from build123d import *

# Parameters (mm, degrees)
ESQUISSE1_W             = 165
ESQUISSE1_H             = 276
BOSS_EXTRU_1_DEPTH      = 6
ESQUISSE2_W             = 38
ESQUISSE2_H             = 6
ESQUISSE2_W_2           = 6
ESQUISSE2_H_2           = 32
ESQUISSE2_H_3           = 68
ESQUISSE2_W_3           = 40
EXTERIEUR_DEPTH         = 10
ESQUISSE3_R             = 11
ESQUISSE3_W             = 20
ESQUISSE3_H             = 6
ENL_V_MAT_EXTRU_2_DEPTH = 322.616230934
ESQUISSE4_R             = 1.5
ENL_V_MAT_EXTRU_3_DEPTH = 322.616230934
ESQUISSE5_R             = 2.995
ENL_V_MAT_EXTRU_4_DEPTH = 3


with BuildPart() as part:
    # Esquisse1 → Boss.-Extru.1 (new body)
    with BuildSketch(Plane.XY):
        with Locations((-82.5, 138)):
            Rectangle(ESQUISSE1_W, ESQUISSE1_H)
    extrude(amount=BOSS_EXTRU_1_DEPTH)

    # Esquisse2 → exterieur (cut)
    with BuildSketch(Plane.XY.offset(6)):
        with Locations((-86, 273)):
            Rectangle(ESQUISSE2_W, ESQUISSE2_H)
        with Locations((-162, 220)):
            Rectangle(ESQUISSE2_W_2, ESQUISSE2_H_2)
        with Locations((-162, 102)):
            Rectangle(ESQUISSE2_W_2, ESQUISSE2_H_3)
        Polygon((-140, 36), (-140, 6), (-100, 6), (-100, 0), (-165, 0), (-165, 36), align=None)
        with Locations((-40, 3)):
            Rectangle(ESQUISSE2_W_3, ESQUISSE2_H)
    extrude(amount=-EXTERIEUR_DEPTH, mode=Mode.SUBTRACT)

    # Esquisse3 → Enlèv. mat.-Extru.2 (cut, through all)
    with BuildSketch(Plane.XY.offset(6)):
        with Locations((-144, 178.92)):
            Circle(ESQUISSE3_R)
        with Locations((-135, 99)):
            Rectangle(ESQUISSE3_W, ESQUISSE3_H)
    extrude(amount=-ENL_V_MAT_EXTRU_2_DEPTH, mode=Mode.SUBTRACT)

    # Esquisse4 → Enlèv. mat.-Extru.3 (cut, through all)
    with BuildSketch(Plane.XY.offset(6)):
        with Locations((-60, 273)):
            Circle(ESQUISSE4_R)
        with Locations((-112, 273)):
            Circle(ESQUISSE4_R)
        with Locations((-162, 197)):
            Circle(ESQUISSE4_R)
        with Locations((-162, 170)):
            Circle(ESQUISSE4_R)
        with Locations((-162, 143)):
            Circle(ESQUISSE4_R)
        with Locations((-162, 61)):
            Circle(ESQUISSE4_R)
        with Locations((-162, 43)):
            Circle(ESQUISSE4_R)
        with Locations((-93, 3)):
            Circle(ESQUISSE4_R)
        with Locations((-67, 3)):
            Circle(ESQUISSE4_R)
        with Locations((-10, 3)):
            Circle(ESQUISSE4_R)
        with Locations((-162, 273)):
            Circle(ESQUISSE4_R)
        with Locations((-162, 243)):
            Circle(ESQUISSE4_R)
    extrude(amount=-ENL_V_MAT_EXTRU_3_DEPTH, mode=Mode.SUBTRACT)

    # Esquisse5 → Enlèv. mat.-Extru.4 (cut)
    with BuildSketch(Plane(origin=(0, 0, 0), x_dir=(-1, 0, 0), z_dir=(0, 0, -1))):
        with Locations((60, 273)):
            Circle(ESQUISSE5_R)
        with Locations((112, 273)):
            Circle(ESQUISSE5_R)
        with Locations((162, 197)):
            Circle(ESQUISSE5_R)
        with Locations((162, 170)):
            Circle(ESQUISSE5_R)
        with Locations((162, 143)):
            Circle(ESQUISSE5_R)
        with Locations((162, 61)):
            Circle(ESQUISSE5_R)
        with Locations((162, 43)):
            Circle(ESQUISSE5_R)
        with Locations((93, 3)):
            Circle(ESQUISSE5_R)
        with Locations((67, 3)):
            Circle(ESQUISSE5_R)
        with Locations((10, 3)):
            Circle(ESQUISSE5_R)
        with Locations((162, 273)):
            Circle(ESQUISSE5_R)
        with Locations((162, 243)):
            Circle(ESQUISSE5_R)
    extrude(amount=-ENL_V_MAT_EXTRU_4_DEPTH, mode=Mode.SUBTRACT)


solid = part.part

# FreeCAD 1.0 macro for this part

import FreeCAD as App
import Part
import Sketcher
from FreeCAD import Vector

doc = App.newDocument("Part")
params = doc.addObject("Spreadsheet::Sheet", "Params")
for row, (alias, value) in enumerate([
    ("sketch1_width", "165 mm"),
    ("sketch1_height", "276 mm"),
    ("pad1_length", "6 mm"),
    ("sketch2_width", "38 mm"),
    ("sketch2_width2", "6 mm"),
    ("sketch2_width3", "25 mm"),
    ("sketch2_width4", "65 mm"),
    ("sketch2_height", "32 mm"),
    ("pocket1_length", "10 mm"),
    ("sketch3_diameter", "22 mm"),
    ("sketch3_width", "20 mm"),
    ("sketch3_height", "6 mm"),
    ("sketch4_diameter", "3 mm"),
    ("sketch5_diameter", "5.99 mm"),
    ("pocket4_length", "3 mm"),
], start=1):
    params.set(f"A{row}", alias)
    params.set(f"B{row}", "=" + value)
    params.setAlias(f"B{row}", alias)

body = doc.addObject("PartDesign::Body", "Body")

# Sketch on XY plane
sketch1 = body.newObject("Sketcher::SketchObject", "Sketch")
sketch1.AttachmentSupport = (doc.getObject("XY_Plane"), [""])
sketch1.MapMode = "FlatFace"
sketch1.addGeometry(Part.LineSegment(Vector(-165, 276, 0), Vector(-165, 0, 0)), False)
sketch1.addGeometry(Part.LineSegment(Vector(-165, 0, 0), Vector(0, 0, 0)), False)
sketch1.addGeometry(Part.LineSegment(Vector(0, 0, 0), Vector(0, 276, 0)), False)
sketch1.addGeometry(Part.LineSegment(Vector(0, 276, 0), Vector(-165, 276, 0)), False)
sketch1.addConstraint(Sketcher.Constraint("Coincident", 0, 2, 1, 1))
sketch1.addConstraint(Sketcher.Constraint("Coincident", 1, 2, 2, 1))
sketch1.addConstraint(Sketcher.Constraint("Coincident", 2, 2, 3, 1))
sketch1.addConstraint(Sketcher.Constraint("Coincident", 3, 2, 0, 1))
sketch1.addConstraint(Sketcher.Constraint("Vertical", 0))
sketch1.addConstraint(Sketcher.Constraint("Horizontal", 1))
sketch1.addConstraint(Sketcher.Constraint("Vertical", 2))
sketch1.addConstraint(Sketcher.Constraint("Horizontal", 3))
sketch1.addConstraint(Sketcher.Constraint("Coincident", 1, 2, -1, 1))
sketch1.addConstraint(Sketcher.Constraint("DistanceX", 1, 1, 1, 2, 165.0))
sketch1.addConstraint(Sketcher.Constraint("DistanceY", 0, 2, 0, 1, 276.0))
sketch1.setExpression("Constraints[9]", "Params.sketch1_width")
sketch1.setExpression("Constraints[10]", "Params.sketch1_height")
pad1 = body.newObject("PartDesign::Pad", "Pad")
pad1.Profile = sketch1
pad1.setExpression("Length", "Params.pad1_length")

# Sketch on XY plane
sketch2 = body.newObject("Sketcher::SketchObject", "Sketch001")
sketch2.AttachmentSupport = (doc.getObject("XY_Plane"), [""])
sketch2.MapMode = "FlatFace"
sketch2.AttachmentOffset = App.Placement(Vector(0, 0, 6), App.Rotation())
sketch2.addGeometry(Part.LineSegment(Vector(-105, 276, 0), Vector(-105, 270, 0)), False)
sketch2.addGeometry(Part.LineSegment(Vector(-105, 270, 0), Vector(-67, 270, 0)), False)
sketch2.addGeometry(Part.LineSegment(Vector(-67, 270, 0), Vector(-67, 276, 0)), False)
sketch2.addGeometry(Part.LineSegment(Vector(-67, 276, 0), Vector(-105, 276, 0)), False)
sketch2.addGeometry(Part.LineSegment(Vector(-165, 236, 0), Vector(-165, 204, 0)), False)
sketch2.addGeometry(Part.LineSegment(Vector(-165, 204, 0), Vector(-159, 204, 0)), False)
sketch2.addGeometry(Part.LineSegment(Vector(-159, 204, 0), Vector(-159, 236, 0)), False)
sketch2.addGeometry(Part.LineSegment(Vector(-159, 236, 0), Vector(-165, 236, 0)), False)
sketch2.addGeometry(Part.LineSegment(Vector(-165, 136, 0), Vector(-165, 68, 0)), False)
sketch2.addGeometry(Part.LineSegment(Vector(-165, 68, 0), Vector(-159, 68, 0)), False)
sketch2.addGeometry(Part.LineSegment(Vector(-159, 68, 0), Vector(-159, 136, 0)), False)
sketch2.addGeometry(Part.LineSegment(Vector(-159, 136, 0), Vector(-165, 136, 0)), False)
sketch2.addGeometry(Part.LineSegment(Vector(-140, 6, 0), Vector(-140, 36, 0)), False)
sketch2.addGeometry(Part.LineSegment(Vector(-140, 36, 0), Vector(-165, 36, 0)), False)
sketch2.addGeometry(Part.LineSegment(Vector(-165, 36, 0), Vector(-165, 0, 0)), False)
sketch2.addGeometry(Part.LineSegment(Vector(-165, 0, 0), Vector(-100, 0, 0)), False)
sketch2.addGeometry(Part.LineSegment(Vector(-100, 0, 0), Vector(-100, 6, 0)), False)
sketch2.addGeometry(Part.LineSegment(Vector(-100, 6, 0), Vector(-140, 6, 0)), False)
sketch2.addGeometry(Part.LineSegment(Vector(-60, 6, 0), Vector(-60, 0, 0)), False)
sketch2.addGeometry(Part.LineSegment(Vector(-60, 0, 0), Vector(-20, 0, 0)), False)
sketch2.addGeometry(Part.LineSegment(Vector(-20, 0, 0), Vector(-20, 6, 0)), False)
sketch2.addGeometry(Part.LineSegment(Vector(-20, 6, 0), Vector(-60, 6, 0)), False)
sketch2.addConstraint(Sketcher.Constraint("Coincident", 0, 2, 1, 1))
sketch2.addConstraint(Sketcher.Constraint("Coincident", 1, 2, 2, 1))
sketch2.addConstraint(Sketcher.Constraint("Coincident", 2, 2, 3, 1))
sketch2.addConstraint(Sketcher.Constraint("Coincident", 3, 2, 0, 1))
sketch2.addConstraint(Sketcher.Constraint("Coincident", 4, 2, 5, 1))
sketch2.addConstraint(Sketcher.Constraint("Coincident", 5, 2, 6, 1))
sketch2.addConstraint(Sketcher.Constraint("Coincident", 6, 2, 7, 1))
sketch2.addConstraint(Sketcher.Constraint("Coincident", 7, 2, 4, 1))
sketch2.addConstraint(Sketcher.Constraint("Coincident", 8, 2, 9, 1))
sketch2.addConstraint(Sketcher.Constraint("Coincident", 9, 2, 10, 1))
sketch2.addConstraint(Sketcher.Constraint("Coincident", 10, 2, 11, 1))
sketch2.addConstraint(Sketcher.Constraint("Coincident", 11, 2, 8, 1))
sketch2.addConstraint(Sketcher.Constraint("Coincident", 12, 2, 13, 1))
sketch2.addConstraint(Sketcher.Constraint("Coincident", 13, 2, 14, 1))
sketch2.addConstraint(Sketcher.Constraint("Coincident", 14, 2, 15, 1))
sketch2.addConstraint(Sketcher.Constraint("Coincident", 15, 2, 16, 1))
sketch2.addConstraint(Sketcher.Constraint("Coincident", 16, 2, 17, 1))
sketch2.addConstraint(Sketcher.Constraint("Coincident", 17, 2, 12, 1))
sketch2.addConstraint(Sketcher.Constraint("Coincident", 18, 2, 19, 1))
sketch2.addConstraint(Sketcher.Constraint("Coincident", 19, 2, 20, 1))
sketch2.addConstraint(Sketcher.Constraint("Coincident", 20, 2, 21, 1))
sketch2.addConstraint(Sketcher.Constraint("Coincident", 21, 2, 18, 1))
sketch2.addConstraint(Sketcher.Constraint("Vertical", 0))
sketch2.addConstraint(Sketcher.Constraint("Horizontal", 1))
sketch2.addConstraint(Sketcher.Constraint("Vertical", 2))
sketch2.addConstraint(Sketcher.Constraint("Horizontal", 3))
sketch2.addConstraint(Sketcher.Constraint("Vertical", 4))
sketch2.addConstraint(Sketcher.Constraint("Horizontal", 5))
sketch2.addConstraint(Sketcher.Constraint("Vertical", 6))
sketch2.addConstraint(Sketcher.Constraint("Horizontal", 7))
sketch2.addConstraint(Sketcher.Constraint("Vertical", 8))
sketch2.addConstraint(Sketcher.Constraint("Horizontal", 9))
sketch2.addConstraint(Sketcher.Constraint("Vertical", 10))
sketch2.addConstraint(Sketcher.Constraint("Horizontal", 11))
sketch2.addConstraint(Sketcher.Constraint("Vertical", 12))
sketch2.addConstraint(Sketcher.Constraint("Horizontal", 13))
sketch2.addConstraint(Sketcher.Constraint("Vertical", 14))
sketch2.addConstraint(Sketcher.Constraint("Horizontal", 15))
sketch2.addConstraint(Sketcher.Constraint("Vertical", 16))
sketch2.addConstraint(Sketcher.Constraint("Horizontal", 17))
sketch2.addConstraint(Sketcher.Constraint("Vertical", 18))
sketch2.addConstraint(Sketcher.Constraint("Horizontal", 19))
sketch2.addConstraint(Sketcher.Constraint("Vertical", 20))
sketch2.addConstraint(Sketcher.Constraint("Horizontal", 21))
sketch2.addConstraint(Sketcher.Constraint("PointOnObject", 14, 2, -1))
sketch2.addConstraint(Sketcher.Constraint("PointOnObject", 18, 2, -1))
sketch2.addConstraint(Sketcher.Constraint("Horizontal", 17, 2, 20, 2))
sketch2.addConstraint(Sketcher.Constraint("Vertical", 7, 2, 8, 2))
sketch2.addConstraint(Sketcher.Constraint("Vertical", 6, 2, 9, 2))
sketch2.addConstraint(Sketcher.Constraint("Vertical", 11, 2, 13, 2))
sketch2.addConstraint(Sketcher.Constraint("Equal", 17, 19))
sketch2.addConstraint(Sketcher.Constraint("Equal", 11, 0))
sketch2.addConstraint(Sketcher.Constraint("Equal", 2, 16))
sketch2.addConstraint(Sketcher.Constraint("DistanceX", 1, 1, 1, 2, 38.0))
sketch2.addConstraint(Sketcher.Constraint("DistanceX", 5, 1, 5, 2, 6.0))
sketch2.addConstraint(Sketcher.Constraint("DistanceX", 13, 2, 13, 1, 25.0))
sketch2.addConstraint(Sketcher.Constraint("DistanceX", 15, 1, 15, 2, 65.0))
sketch2.addConstraint(Sketcher.Constraint("DistanceY", 4, 2, 4, 1, 32.0))
sketch2.addConstraint(Sketcher.Constraint("DistanceY", 8, 2, 8, 1, 68.0))
sketch2.addConstraint(Sketcher.Constraint("DistanceY", 12, 1, 12, 2, 30.0))
sketch2.addConstraint(Sketcher.Constraint("DistanceX", 0, 2, -1, 1, 105.0))
sketch2.addConstraint(Sketcher.Constraint("DistanceY", -1, 1, 0, 2, 270.0))
sketch2.addConstraint(Sketcher.Constraint("DistanceX", 4, 2, -1, 1, 165.0))
sketch2.addConstraint(Sketcher.Constraint("DistanceY", -1, 1, 4, 2, 204.0))
sketch2.addConstraint(Sketcher.Constraint("DistanceY", -1, 1, 8, 2, 68.0))
sketch2.addConstraint(Sketcher.Constraint("DistanceX", 18, 2, -1, 1, 60.0))
sketch2.setExpression("Constraints[53]", "Params.sketch2_width")
sketch2.setExpression("Constraints[54]", "Params.sketch2_width2")
sketch2.setExpression("Constraints[55]", "Params.sketch2_width3")
sketch2.setExpression("Constraints[56]", "Params.sketch2_width4")
sketch2.setExpression("Constraints[57]", "Params.sketch2_height")
pocket1 = body.newObject("PartDesign::Pocket", "Pocket")
pocket1.Profile = sketch2
pocket1.setExpression("Length", "Params.pocket1_length")

# Sketch on XY plane
sketch3 = body.newObject("Sketcher::SketchObject", "Sketch002")
sketch3.AttachmentSupport = (doc.getObject("XY_Plane"), [""])
sketch3.MapMode = "FlatFace"
sketch3.AttachmentOffset = App.Placement(Vector(0, 0, 6), App.Rotation())
sketch3.addGeometry(Part.Circle(Vector(-144, 179, 0), Vector(0, 0, 1), 11), False)
sketch3.addGeometry(Part.LineSegment(Vector(-145, 102, 0), Vector(-145, 96, 0)), False)
sketch3.addGeometry(Part.LineSegment(Vector(-145, 96, 0), Vector(-125, 96, 0)), False)
sketch3.addGeometry(Part.LineSegment(Vector(-125, 96, 0), Vector(-125, 102, 0)), False)
sketch3.addGeometry(Part.LineSegment(Vector(-125, 102, 0), Vector(-145, 102, 0)), False)
sketch3.addConstraint(Sketcher.Constraint("Coincident", 1, 2, 2, 1))
sketch3.addConstraint(Sketcher.Constraint("Coincident", 2, 2, 3, 1))
sketch3.addConstraint(Sketcher.Constraint("Coincident", 3, 2, 4, 1))
sketch3.addConstraint(Sketcher.Constraint("Coincident", 4, 2, 1, 1))
sketch3.addConstraint(Sketcher.Constraint("Vertical", 1))
sketch3.addConstraint(Sketcher.Constraint("Horizontal", 2))
sketch3.addConstraint(Sketcher.Constraint("Vertical", 3))
sketch3.addConstraint(Sketcher.Constraint("Horizontal", 4))
sketch3.addConstraint(Sketcher.Constraint("Diameter", 0, 22.0))
sketch3.addConstraint(Sketcher.Constraint("DistanceX", 2, 1, 2, 2, 20.0))
sketch3.addConstraint(Sketcher.Constraint("DistanceY", 1, 2, 1, 1, 6.0))
sketch3.addConstraint(Sketcher.Constraint("DistanceX", 0, 3, -1, 1, 144.0))
sketch3.addConstraint(Sketcher.Constraint("DistanceX", 1, 2, -1, 1, 145.0))
sketch3.addConstraint(Sketcher.Constraint("DistanceY", -1, 1, 1, 2, 96.0))
sketch3.addConstraint(Sketcher.Constraint("DistanceY", -1, 1, 0, 3, 178.92))
sketch3.setExpression("Constraints[8]", "Params.sketch3_diameter")
sketch3.setExpression("Constraints[9]", "Params.sketch3_width")
sketch3.setExpression("Constraints[10]", "Params.sketch3_height")
pocket2 = body.newObject("PartDesign::Pocket", "Pocket001")
pocket2.Profile = sketch3
pocket2.Type = "ThroughAll"

# Sketch on XY plane
sketch4 = body.newObject("Sketcher::SketchObject", "Sketch003")
sketch4.AttachmentSupport = (doc.getObject("XY_Plane"), [""])
sketch4.MapMode = "FlatFace"
sketch4.AttachmentOffset = App.Placement(Vector(0, 0, 6), App.Rotation())
sketch4.addGeometry(Part.Circle(Vector(-60, 273, 0), Vector(0, 0, 1), 1.5), False)
sketch4.addGeometry(Part.Circle(Vector(-112, 273, 0), Vector(0, 0, 1), 1.5), False)
sketch4.addGeometry(Part.Circle(Vector(-162, 197, 0), Vector(0, 0, 1), 1.5), False)
sketch4.addGeometry(Part.Circle(Vector(-162, 170, 0), Vector(0, 0, 1), 1.5), False)
sketch4.addGeometry(Part.Circle(Vector(-162, 143, 0), Vector(0, 0, 1), 1.5), False)
sketch4.addGeometry(Part.Circle(Vector(-162, 61, 0), Vector(0, 0, 1), 1.5), False)
sketch4.addGeometry(Part.Circle(Vector(-162, 43, 0), Vector(0, 0, 1), 1.5), False)
sketch4.addGeometry(Part.Circle(Vector(-93, 3, 0), Vector(0, 0, 1), 1.5), False)
sketch4.addGeometry(Part.Circle(Vector(-67, 3, 0), Vector(0, 0, 1), 1.5), False)
sketch4.addGeometry(Part.Circle(Vector(-10, 3, 0), Vector(0, 0, 1), 1.5), False)
sketch4.addGeometry(Part.Circle(Vector(-162, 273, 0), Vector(0, 0, 1), 1.5), False)
sketch4.addGeometry(Part.Circle(Vector(-162, 243, 0), Vector(0, 0, 1), 1.5), False)
sketch4.addConstraint(Sketcher.Constraint("Equal", 0, 1))
sketch4.addConstraint(Sketcher.Constraint("Equal", 1, 2))
sketch4.addConstraint(Sketcher.Constraint("Equal", 2, 3))
sketch4.addConstraint(Sketcher.Constraint("Equal", 3, 4))
sketch4.addConstraint(Sketcher.Constraint("Equal", 4, 5))
sketch4.addConstraint(Sketcher.Constraint("Equal", 5, 6))
sketch4.addConstraint(Sketcher.Constraint("Equal", 6, 7))
sketch4.addConstraint(Sketcher.Constraint("Equal", 7, 8))
sketch4.addConstraint(Sketcher.Constraint("Equal", 8, 9))
sketch4.addConstraint(Sketcher.Constraint("Equal", 9, 10))
sketch4.addConstraint(Sketcher.Constraint("Equal", 10, 11))
sketch4.addConstraint(Sketcher.Constraint("Horizontal", 0, 3, 1, 3))
sketch4.addConstraint(Sketcher.Constraint("Horizontal", 7, 3, 8, 3))
sketch4.addConstraint(Sketcher.Constraint("Horizontal", 8, 3, 9, 3))
sketch4.addConstraint(Sketcher.Constraint("Horizontal", 1, 3, 10, 3))
sketch4.addConstraint(Sketcher.Constraint("Vertical", 2, 3, 3, 3))
sketch4.addConstraint(Sketcher.Constraint("Vertical", 3, 3, 4, 3))
sketch4.addConstraint(Sketcher.Constraint("Vertical", 4, 3, 5, 3))
sketch4.addConstraint(Sketcher.Constraint("Vertical", 5, 3, 6, 3))
sketch4.addConstraint(Sketcher.Constraint("Vertical", 6, 3, 10, 3))
sketch4.addConstraint(Sketcher.Constraint("Vertical", 10, 3, 11, 3))
sketch4.addConstraint(Sketcher.Constraint("Diameter", 0, 3.0))
sketch4.addConstraint(Sketcher.Constraint("DistanceX", 0, 3, -1, 1, 60.0))
sketch4.addConstraint(Sketcher.Constraint("DistanceY", -1, 1, 0, 3, 273.0))
sketch4.addConstraint(Sketcher.Constraint("DistanceX", 1, 3, -1, 1, 112.0))
sketch4.addConstraint(Sketcher.Constraint("DistanceX", 2, 3, -1, 1, 162.0))
sketch4.addConstraint(Sketcher.Constraint("DistanceY", -1, 1, 2, 3, 197.0))
sketch4.addConstraint(Sketcher.Constraint("DistanceY", -1, 1, 3, 3, 170.0))
sketch4.addConstraint(Sketcher.Constraint("DistanceY", -1, 1, 4, 3, 143.0))
sketch4.addConstraint(Sketcher.Constraint("DistanceY", -1, 1, 5, 3, 61.0))
sketch4.addConstraint(Sketcher.Constraint("DistanceY", -1, 1, 6, 3, 43.0))
sketch4.addConstraint(Sketcher.Constraint("DistanceX", 7, 3, -1, 1, 93.0))
sketch4.addConstraint(Sketcher.Constraint("DistanceY", -1, 1, 7, 3, 3.0))
sketch4.addConstraint(Sketcher.Constraint("DistanceX", 8, 3, -1, 1, 67.0))
sketch4.addConstraint(Sketcher.Constraint("DistanceX", 9, 3, -1, 1, 10.0))
sketch4.addConstraint(Sketcher.Constraint("DistanceY", -1, 1, 11, 3, 243.0))
sketch4.setExpression("Constraints[21]", "Params.sketch4_diameter")
pocket3 = body.newObject("PartDesign::Pocket", "Pocket002")
pocket3.Profile = sketch4
pocket3.Type = "ThroughAll"

# Sketch on XY plane
sketch5 = body.newObject("Sketcher::SketchObject", "Sketch004")
sketch5.AttachmentSupport = (doc.getObject("XY_Plane"), [""])
sketch5.MapMode = "FlatFace"
sketch5.addGeometry(Part.Circle(Vector(-60, 273, 0), Vector(0, 0, 1), 3), False)
sketch5.addGeometry(Part.Circle(Vector(-112, 273, 0), Vector(0, 0, 1), 3), False)
sketch5.addGeometry(Part.Circle(Vector(-162, 197, 0), Vector(0, 0, 1), 3), False)
sketch5.addGeometry(Part.Circle(Vector(-162, 170, 0), Vector(0, 0, 1), 3), False)
sketch5.addGeometry(Part.Circle(Vector(-162, 143, 0), Vector(0, 0, 1), 3), False)
sketch5.addGeometry(Part.Circle(Vector(-162, 61, 0), Vector(0, 0, 1), 3), False)
sketch5.addGeometry(Part.Circle(Vector(-162, 43, 0), Vector(0, 0, 1), 3), False)
sketch5.addGeometry(Part.Circle(Vector(-93, 3, 0), Vector(0, 0, 1), 3), False)
sketch5.addGeometry(Part.Circle(Vector(-67, 3, 0), Vector(0, 0, 1), 3), False)
sketch5.addGeometry(Part.Circle(Vector(-10, 3, 0), Vector(0, 0, 1), 3), False)
sketch5.addGeometry(Part.Circle(Vector(-162, 273, 0), Vector(0, 0, 1), 3), False)
sketch5.addGeometry(Part.Circle(Vector(-162, 243, 0), Vector(0, 0, 1), 3), False)
sketch5.addConstraint(Sketcher.Constraint("Equal", 0, 1))
sketch5.addConstraint(Sketcher.Constraint("Equal", 1, 2))
sketch5.addConstraint(Sketcher.Constraint("Equal", 2, 3))
sketch5.addConstraint(Sketcher.Constraint("Equal", 3, 4))
sketch5.addConstraint(Sketcher.Constraint("Equal", 4, 5))
sketch5.addConstraint(Sketcher.Constraint("Equal", 5, 6))
sketch5.addConstraint(Sketcher.Constraint("Equal", 6, 7))
sketch5.addConstraint(Sketcher.Constraint("Equal", 7, 8))
sketch5.addConstraint(Sketcher.Constraint("Equal", 8, 9))
sketch5.addConstraint(Sketcher.Constraint("Equal", 9, 10))
sketch5.addConstraint(Sketcher.Constraint("Equal", 10, 11))
sketch5.addConstraint(Sketcher.Constraint("Horizontal", 0, 3, 1, 3))
sketch5.addConstraint(Sketcher.Constraint("Horizontal", 7, 3, 8, 3))
sketch5.addConstraint(Sketcher.Constraint("Horizontal", 8, 3, 9, 3))
sketch5.addConstraint(Sketcher.Constraint("Horizontal", 1, 3, 10, 3))
sketch5.addConstraint(Sketcher.Constraint("Vertical", 2, 3, 3, 3))
sketch5.addConstraint(Sketcher.Constraint("Vertical", 3, 3, 4, 3))
sketch5.addConstraint(Sketcher.Constraint("Vertical", 4, 3, 5, 3))
sketch5.addConstraint(Sketcher.Constraint("Vertical", 5, 3, 6, 3))
sketch5.addConstraint(Sketcher.Constraint("Vertical", 6, 3, 10, 3))
sketch5.addConstraint(Sketcher.Constraint("Vertical", 10, 3, 11, 3))
sketch5.addConstraint(Sketcher.Constraint("Diameter", 0, 5.99))
sketch5.addConstraint(Sketcher.Constraint("DistanceX", 0, 3, -1, 1, 60.0))
sketch5.addConstraint(Sketcher.Constraint("DistanceY", -1, 1, 0, 3, 273.0))
sketch5.addConstraint(Sketcher.Constraint("DistanceX", 1, 3, -1, 1, 112.0))
sketch5.addConstraint(Sketcher.Constraint("DistanceX", 2, 3, -1, 1, 162.0))
sketch5.addConstraint(Sketcher.Constraint("DistanceY", -1, 1, 2, 3, 197.0))
sketch5.addConstraint(Sketcher.Constraint("DistanceY", -1, 1, 3, 3, 170.0))
sketch5.addConstraint(Sketcher.Constraint("DistanceY", -1, 1, 4, 3, 143.0))
sketch5.addConstraint(Sketcher.Constraint("DistanceY", -1, 1, 5, 3, 61.0))
sketch5.addConstraint(Sketcher.Constraint("DistanceY", -1, 1, 6, 3, 43.0))
sketch5.addConstraint(Sketcher.Constraint("DistanceX", 7, 3, -1, 1, 93.0))
sketch5.addConstraint(Sketcher.Constraint("DistanceY", -1, 1, 7, 3, 3.0))
sketch5.addConstraint(Sketcher.Constraint("DistanceX", 8, 3, -1, 1, 67.0))
sketch5.addConstraint(Sketcher.Constraint("DistanceX", 9, 3, -1, 1, 10.0))
sketch5.addConstraint(Sketcher.Constraint("DistanceY", -1, 1, 11, 3, 243.0))
sketch5.setExpression("Constraints[21]", "Params.sketch5_diameter")
pocket4 = body.newObject("PartDesign::Pocket", "Pocket003")
pocket4.Profile = sketch5
pocket4.setExpression("Length", "Params.pocket4_length")
pocket4.Reversed = True

doc.recompute()
